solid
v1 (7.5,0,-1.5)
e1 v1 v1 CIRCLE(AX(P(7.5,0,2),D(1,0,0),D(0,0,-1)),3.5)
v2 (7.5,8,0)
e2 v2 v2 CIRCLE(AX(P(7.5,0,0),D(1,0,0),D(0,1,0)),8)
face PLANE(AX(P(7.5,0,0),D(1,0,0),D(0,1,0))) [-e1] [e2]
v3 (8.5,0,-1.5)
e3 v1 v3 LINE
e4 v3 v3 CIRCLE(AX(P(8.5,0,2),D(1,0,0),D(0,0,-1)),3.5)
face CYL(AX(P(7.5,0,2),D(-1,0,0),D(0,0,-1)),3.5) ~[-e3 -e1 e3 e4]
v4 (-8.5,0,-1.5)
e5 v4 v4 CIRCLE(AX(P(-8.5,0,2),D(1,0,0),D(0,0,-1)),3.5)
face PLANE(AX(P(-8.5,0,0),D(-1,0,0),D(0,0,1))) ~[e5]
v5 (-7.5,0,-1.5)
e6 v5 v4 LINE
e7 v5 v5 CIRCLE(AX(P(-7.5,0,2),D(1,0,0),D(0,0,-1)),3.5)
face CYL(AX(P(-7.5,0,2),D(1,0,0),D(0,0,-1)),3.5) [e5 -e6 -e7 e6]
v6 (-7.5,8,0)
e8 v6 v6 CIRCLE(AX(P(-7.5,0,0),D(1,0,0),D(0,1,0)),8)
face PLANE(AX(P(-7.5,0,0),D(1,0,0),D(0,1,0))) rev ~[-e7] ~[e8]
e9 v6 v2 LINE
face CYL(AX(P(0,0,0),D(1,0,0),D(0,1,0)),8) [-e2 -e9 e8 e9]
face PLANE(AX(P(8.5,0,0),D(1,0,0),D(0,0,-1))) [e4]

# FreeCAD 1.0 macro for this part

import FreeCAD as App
import Part
import Sketcher

doc = App.newDocument("Part")
params = doc.addObject("Spreadsheet::Sheet", "Params")
for row, (alias, value) in enumerate([
    ("sketch1_diameter", "16 mm"),
    ("pad1_length", "15 mm"),
    ("sketch2_diameter", "7 mm"),
    ("pad2_length", "1 mm"),
], start=1):
    params.set(f"A{row}", alias)
    params.set(f"B{row}", "=" + value)
    params.setAlias(f"B{row}", alias)

body = doc.addObject("PartDesign::Body", "Body")

# Sketch on YZ plane
sketch1 = body.newObject("Sketcher::SketchObject", "Sketch")
sketch1.AttachmentSupport = (doc.getObject("YZ_Plane"), [""])
sketch1.MapMode = "FlatFace"
sketch1.addGeometry(Part.Circle(App.Vector(0, 0, 0), App.Vector(0, 0, 1), 8), False)
sketch1.addConstraint([
    Sketcher.Constraint("Coincident", 0, 3, -1, 1),
    Sketcher.Constraint("Diameter", 0, 16.0),
])
sketch1.setExpression("Constraints[1]", "Params.sketch1_diameter")
pad1 = body.newObject("PartDesign::Pad", "Pad")
pad1.Profile = sketch1
pad1.setExpression("Length", "Params.pad1_length")
pad1.Midplane = True

# Sketch on YZ plane
sketch2 = body.newObject("Sketcher::SketchObject", "Sketch001")
sketch2.AttachmentSupport = (doc.getObject("YZ_Plane"), [""])
sketch2.MapMode = "FlatFace"
sketch2.AttachmentOffset = App.Placement(App.Vector(0, 0, 7.5), App.Rotation())
sketch2.addGeometry(Part.Circle(App.Vector(0, 2, 0), App.Vector(0, 0, 1), 3.5), False)
sketch2.addConstraint([
    Sketcher.Constraint("PointOnObject", 0, 3, -2),
    Sketcher.Constraint("Diameter", 0, 7.0),
    Sketcher.Constraint("DistanceY", -1, 1, 0, 3, 2.0),
])
sketch2.setExpression("Constraints[1]", "Params.sketch2_diameter")
pad2 = body.newObject("PartDesign::Pad", "Pad001")
pad2.Profile = sketch2
pad2.setExpression("Length", "Params.pad2_length")
doc.recompute()

mirrored = body.newObject("PartDesign::Mirrored", "Mirrored")
mirrored.Originals = [pad2, pad1]
mirrored.MirrorPlane = (doc.getObject("YZ_Plane"), [""])
body.Tip = mirrored

doc.recompute()
